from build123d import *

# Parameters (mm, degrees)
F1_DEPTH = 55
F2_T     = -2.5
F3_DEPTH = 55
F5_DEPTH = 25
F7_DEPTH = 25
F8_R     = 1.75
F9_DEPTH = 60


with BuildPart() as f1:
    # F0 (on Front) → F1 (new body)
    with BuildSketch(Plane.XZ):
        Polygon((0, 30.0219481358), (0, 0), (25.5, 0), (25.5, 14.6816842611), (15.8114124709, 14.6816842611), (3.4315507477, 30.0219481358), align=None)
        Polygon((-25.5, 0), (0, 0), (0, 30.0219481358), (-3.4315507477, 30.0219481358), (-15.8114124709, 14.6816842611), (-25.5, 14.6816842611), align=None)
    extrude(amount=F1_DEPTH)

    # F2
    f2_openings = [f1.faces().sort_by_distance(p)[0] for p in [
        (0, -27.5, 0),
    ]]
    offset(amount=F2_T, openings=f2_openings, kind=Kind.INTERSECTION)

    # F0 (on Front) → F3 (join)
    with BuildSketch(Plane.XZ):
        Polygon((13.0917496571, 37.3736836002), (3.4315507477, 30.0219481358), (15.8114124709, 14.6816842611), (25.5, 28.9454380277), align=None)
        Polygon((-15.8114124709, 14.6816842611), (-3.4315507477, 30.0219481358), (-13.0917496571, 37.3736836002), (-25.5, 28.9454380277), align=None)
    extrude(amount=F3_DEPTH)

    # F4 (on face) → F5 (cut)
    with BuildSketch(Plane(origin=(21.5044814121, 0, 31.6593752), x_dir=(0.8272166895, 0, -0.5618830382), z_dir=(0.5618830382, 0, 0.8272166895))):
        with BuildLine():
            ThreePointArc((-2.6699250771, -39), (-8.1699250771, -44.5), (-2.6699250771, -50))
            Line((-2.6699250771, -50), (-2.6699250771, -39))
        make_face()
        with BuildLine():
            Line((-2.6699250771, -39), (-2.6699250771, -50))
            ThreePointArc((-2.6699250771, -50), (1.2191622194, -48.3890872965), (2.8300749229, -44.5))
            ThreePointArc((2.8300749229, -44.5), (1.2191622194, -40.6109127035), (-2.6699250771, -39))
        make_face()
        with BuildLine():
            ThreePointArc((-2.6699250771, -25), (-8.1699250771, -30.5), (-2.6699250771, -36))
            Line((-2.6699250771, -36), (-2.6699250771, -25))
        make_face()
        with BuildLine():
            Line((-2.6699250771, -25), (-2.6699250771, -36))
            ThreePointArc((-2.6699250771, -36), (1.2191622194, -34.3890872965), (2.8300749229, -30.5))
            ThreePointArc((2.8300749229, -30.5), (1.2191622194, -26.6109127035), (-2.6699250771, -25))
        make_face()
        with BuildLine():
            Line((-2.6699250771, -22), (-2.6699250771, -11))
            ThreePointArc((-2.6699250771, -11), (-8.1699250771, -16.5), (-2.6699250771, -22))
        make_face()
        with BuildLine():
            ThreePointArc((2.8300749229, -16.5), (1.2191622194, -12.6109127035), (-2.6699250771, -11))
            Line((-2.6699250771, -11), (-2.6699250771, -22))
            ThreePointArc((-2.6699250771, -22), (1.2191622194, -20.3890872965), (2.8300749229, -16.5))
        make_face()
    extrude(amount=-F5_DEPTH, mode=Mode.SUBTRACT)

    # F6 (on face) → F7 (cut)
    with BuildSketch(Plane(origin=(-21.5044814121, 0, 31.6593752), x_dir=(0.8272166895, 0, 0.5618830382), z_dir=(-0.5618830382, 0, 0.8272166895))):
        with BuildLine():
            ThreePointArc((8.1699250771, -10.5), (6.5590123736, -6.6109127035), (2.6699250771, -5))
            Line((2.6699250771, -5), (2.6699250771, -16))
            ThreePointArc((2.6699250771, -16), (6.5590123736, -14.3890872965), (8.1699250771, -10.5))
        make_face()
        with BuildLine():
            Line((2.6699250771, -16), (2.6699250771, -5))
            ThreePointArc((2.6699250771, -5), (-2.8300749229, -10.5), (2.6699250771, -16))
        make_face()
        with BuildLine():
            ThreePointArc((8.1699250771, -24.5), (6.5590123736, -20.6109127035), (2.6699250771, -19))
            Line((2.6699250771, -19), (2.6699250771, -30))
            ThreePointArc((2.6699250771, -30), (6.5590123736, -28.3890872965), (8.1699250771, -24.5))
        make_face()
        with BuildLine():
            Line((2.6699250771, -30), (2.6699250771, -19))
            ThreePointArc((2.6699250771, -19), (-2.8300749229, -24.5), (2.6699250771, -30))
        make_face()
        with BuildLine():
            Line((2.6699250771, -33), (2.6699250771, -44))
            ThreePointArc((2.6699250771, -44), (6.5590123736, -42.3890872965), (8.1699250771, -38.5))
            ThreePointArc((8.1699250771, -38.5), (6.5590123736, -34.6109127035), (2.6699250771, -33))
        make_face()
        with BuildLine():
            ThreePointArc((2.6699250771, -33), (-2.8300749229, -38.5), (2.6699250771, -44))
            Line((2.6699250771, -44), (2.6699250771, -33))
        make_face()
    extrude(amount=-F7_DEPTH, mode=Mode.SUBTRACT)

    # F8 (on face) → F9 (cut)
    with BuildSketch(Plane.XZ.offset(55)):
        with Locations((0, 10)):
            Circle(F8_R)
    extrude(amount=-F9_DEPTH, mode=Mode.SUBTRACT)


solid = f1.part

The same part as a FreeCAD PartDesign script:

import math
import FreeCAD as App
import Part
import Sketcher

V = App.Vector
Q = App.Units.Quantity


def faces_at(feature, points):
    """Names of the faces that lie closest to the given points."""
    faces = feature.Shape.Faces
    near = lambda p: min(range(len(faces)), key=lambda i: faces[i].distToShape(Part.Vertex(*p))[0])
    return sorted({f"Face{near(p) + 1}" for p in points})

doc = App.newDocument("Part")
params = doc.addObject("Spreadsheet::Sheet", "Params")
for row, (alias, value) in enumerate([
    ("sketch1_width", "51 mm"),
    ("pad1_length", "55 mm"),
    ("thickness_wall", "2.5 mm"),
    ("sketch2_length", "15 mm"),
    ("pad2_length", "55 mm"),
    ("sketch3_radius", "5.5 mm"),
    ("pocket1_length", "25 mm"),
    ("sketch4_radius", "5.5 mm"),
    ("pocket2_length", "25 mm"),
    ("sketch5_diameter", "3.5 mm"),
    ("pocket3_length", "60 mm"),
], start=1):
    params.set(f"A{row}", alias)
    params.set(f"B{row}", "=" + value)
    params.setAlias(f"B{row}", alias)

body = doc.addObject("PartDesign::Body", "Body")

# Sketch on XZ plane
sketch1 = body.newObject("Sketcher::SketchObject", "Sketch")
sketch1.AttachmentSupport = (doc.getObject("XZ_Plane"), [""])
sketch1.MapMode = "FlatFace"
sketch1.addGeometry([
    Part.LineSegment(V(25.5, 0, 0), V(25.5, 14.681684, 0)),  # 0
    Part.LineSegment(V(25.5, 14.681684, 0), V(15.811412, 14.681684, 0)),  # 1
    Part.LineSegment(V(15.811412, 14.681684, 0), V(3.431551, 30.021948, 0)),  # 2
    Part.LineSegment(V(3.431551, 30.021948, 0), V(-3.431551, 30.021948, 0)),  # 3
    Part.LineSegment(V(-3.431551, 30.021948, 0), V(-15.811412, 14.681684, 0)),  # 4
    Part.LineSegment(V(-15.811412, 14.681684, 0), V(-25.5, 14.681684, 0)),  # 5
    Part.LineSegment(V(-25.5, 14.681684, 0), V(-25.5, 0, 0)),  # 6
    Part.LineSegment(V(-25.5, 0, 0), V(25.5, 0, 0)),  # 7
], False)
sketch1.addConstraint([
    Sketcher.Constraint("Coincident", 0, 2, 1, 1),
    Sketcher.Constraint("Coincident", 1, 2, 2, 1),
    Sketcher.Constraint("Coincident", 2, 2, 3, 1),
    Sketcher.Constraint("Coincident", 3, 2, 4, 1),
    Sketcher.Constraint("Coincident", 4, 2, 5, 1),
    Sketcher.Constraint("Coincident", 5, 2, 6, 1),
    Sketcher.Constraint("Coincident", 6, 2, 7, 1),
    Sketcher.Constraint("Coincident", 7, 2, 0, 1),
    Sketcher.Constraint("Vertical", 0),
    Sketcher.Constraint("Horizontal", 1),
    Sketcher.Constraint("Horizontal", 3),
    Sketcher.Constraint("Horizontal", 5),
    Sketcher.Constraint("Vertical", 6),
    Sketcher.Constraint("Horizontal", 7),
    Sketcher.Constraint("Symmetric", 6, 2, 7, 2, -1, 1),
    Sketcher.Constraint("Symmetric", 1, 2, 4, 2, -2),
    Sketcher.Constraint("Equal", 2, 4),
    Sketcher.Constraint("DistanceX", 7, 1, 7, 2, Q("51 mm")),
    Sketcher.Constraint("DistanceX", 3, 2, 3, 1, Q("6.863101 mm")),
    Sketcher.Constraint("Distance", 2, Q("19.712551 mm")),
    Sketcher.Constraint("DistanceX", 1, 2, 1, 1, Q("9.688588 mm")),
    Sketcher.Constraint("DistanceY", 0, 1, 0, 2, Q("14.681684 mm")),
])
sketch1.setExpression("Constraints[17]", "Params.sketch1_width")
pad1 = body.newObject("PartDesign::Pad", "Pad")
pad1.Profile = sketch1
pad1.setExpression("Length", "Params.pad1_length")
doc.recompute()

thickness = body.newObject("PartDesign::Thickness", "Thickness")
thickness.Base = (pad1, faces_at(pad1, [(0, -27.5, 0)]))
thickness.setExpression("Value", "Params.thickness_wall")
thickness.Reversed = True
thickness.Join = "Intersection"

# Sketch on XZ plane
sketch2 = body.newObject("Sketcher::SketchObject", "Sketch001")
sketch2.AttachmentSupport = (doc.getObject("XZ_Plane"), [""])
sketch2.MapMode = "FlatFace"
sketch2.addGeometry([
    Part.LineSegment(V(13.09175, 37.373684, 0), V(3.431551, 30.021948, 0)),  # 0
    Part.LineSegment(V(3.431551, 30.021948, 0), V(15.811412, 14.681684, 0)),  # 1
    Part.LineSegment(V(15.811412, 14.681684, 0), V(25.5, 28.945438, 0)),  # 2
    Part.LineSegment(V(25.5, 28.945438, 0), V(13.09175, 37.373684, 0)),  # 3
    Part.LineSegment(V(-15.811412, 14.681684, 0), V(-3.431551, 30.021948, 0)),  # 4
    Part.LineSegment(V(-3.431551, 30.021948, 0), V(-13.09175, 37.373684, 0)),  # 5
    Part.LineSegment(V(-13.09175, 37.373684, 0), V(-25.5, 28.945438, 0)),  # 6
    Part.LineSegment(V(-25.5, 28.945438, 0), V(-15.811412, 14.681684, 0)),  # 7
], False)
sketch2.addConstraint([
    Sketcher.Constraint("Coincident", 0, 2, 1, 1),
    Sketcher.Constraint("Coincident", 1, 2, 2, 1),
    Sketcher.Constraint("Coincident", 2, 2, 3, 1),
    Sketcher.Constraint("Coincident", 3, 2, 0, 1),
    Sketcher.Constraint("Coincident", 4, 2, 5, 1),
    Sketcher.Constraint("Coincident", 5, 2, 6, 1),
    Sketcher.Constraint("Coincident", 6, 2, 7, 1),
    Sketcher.Constraint("Coincident", 7, 2, 4, 1),
    Sketcher.Constraint("Symmetric", 0, 2, 4, 2, -2),
    Sketcher.Constraint("Symmetric", 3, 2, 5, 2, -2),
    Sketcher.Constraint("Symmetric", 2, 2, 6, 2, -2),
    Sketcher.Constraint("Symmetric", 1, 2, 7, 2, -2),
    Sketcher.Constraint("Perpendicular", 2, 3),
    Sketcher.Constraint("Distance", 3, Q("15 mm")),
    Sketcher.Constraint("DistanceX", -1, 1, 2, 2, Q("25.5 mm")),
    Sketcher.Constraint("DistanceY", 1, 2, 3, 2, Q("22.691999 mm")),
    Sketcher.Constraint("Distance", 0, Q("12.1395 mm")),
    Sketcher.Constraint("DistanceX", 0, 2, 3, 2, Q("9.660199 mm")),
    Sketcher.Constraint("DistanceX", 4, 2, 0, 2, Q("6.863101 mm")),
    Sketcher.Constraint("DistanceY", -1, 1, 0, 2, Q("30.021948 mm")),
])
sketch2.setExpression("Constraints[13]", "Params.sketch2_length")
pad2 = body.newObject("PartDesign::Pad", "Pad001")
pad2.Profile = sketch2
pad2.setExpression("Length", "Params.pad2_length")

# Sketch on an angled plane
sketch3 = body.newObject("Sketcher::SketchObject", "Sketch002")
sketch3.Placement = App.Placement(V(21.504481, 0, 31.659375), App.Rotation(V(0.827216689, 0, -0.561883038), V(0, 0.999999999, 0), V(0.561883038, 0, 0.827216689), "ZXY"))
sketch3.addGeometry([
    Part.ArcOfCircle(Part.Circle(V(-2.669925, -44.5, 0), V(0, 0, 1), 5.5), math.radians(90), math.radians(270)),  # 0
    Part.ArcOfCircle(Part.Circle(V(-2.669925, -44.5, 0), V(0, 0, 1), 5.5), math.radians(-90), math.radians(0)),  # 1
    Part.ArcOfCircle(Part.Circle(V(-2.669925, -44.5, 0), V(0, 0, 1), 5.5), math.radians(0), math.radians(90)),  # 2
    Part.ArcOfCircle(Part.Circle(V(-2.669925, -30.5, 0), V(0, 0, 1), 5.5), math.radians(90), math.radians(270)),  # 3
    Part.ArcOfCircle(Part.Circle(V(-2.669925, -30.5, 0), V(0, 0, 1), 5.5), math.radians(-90), math.radians(0)),  # 4
    Part.ArcOfCircle(Part.Circle(V(-2.669925, -30.5, 0), V(0, 0, 1), 5.5), math.radians(0), math.radians(90)),  # 5
    Part.ArcOfCircle(Part.Circle(V(-2.669925, -16.5, 0), V(0, 0, 1), 5.5), math.radians(90), math.radians(270)),  # 6
    Part.ArcOfCircle(Part.Circle(V(-2.669925, -16.5, 0), V(0, 0, 1), 5.5), math.radians(-90), math.radians(0)),  # 7
    Part.ArcOfCircle(Part.Circle(V(-2.669925, -16.5, 0), V(0, 0, 1), 5.5), math.radians(0), math.radians(90)),  # 8
], False)
sketch3.addConstraint([
    Sketcher.Constraint("Tangent", 0, 2, 1, 1),
    Sketcher.Constraint("Tangent", 1, 2, 2, 1),
    Sketcher.Constraint("Tangent", 2, 2, 0, 1),
    Sketcher.Constraint("Tangent", 3, 2, 4, 1),
    Sketcher.Constraint("Tangent", 4, 2, 5, 1),
    Sketcher.Constraint("Tangent", 5, 2, 3, 1),
    Sketcher.Constraint("Tangent", 6, 2, 7, 1),
    Sketcher.Constraint("Tangent", 7, 2, 8, 1),
    Sketcher.Constraint("Tangent", 8, 2, 6, 1),
    Sketcher.Constraint("Equal", 2, 3),
    Sketcher.Constraint("Equal", 5, 6),
    Sketcher.Constraint("Horizontal", 2, 3, 1, 2),
    Sketcher.Constraint("Horizontal", 5, 3, 4, 2),
    Sketcher.Constraint("Horizontal", 8, 3, 7, 2),
    Sketcher.Constraint("Vertical", 2, 3, 3, 3),
    Sketcher.Constraint("Vertical", 5, 3, 6, 3),
    Sketcher.Constraint("Vertical", 8, 3, 0, 2),
    Sketcher.Constraint("Vertical", 0, 2, 2, 2),
    Sketcher.Constraint("Vertical", 2, 2, 3, 2),
    Sketcher.Constraint("Vertical", 3, 2, 5, 2),
    Sketcher.Constraint("Vertical", 5, 2, 6, 2),
    Sketcher.Constraint("Vertical", 6, 2, 8, 2),
    Sketcher.Constraint("Radius", 0, Q("5.5 mm")),
    Sketcher.Constraint("DistanceY", 0, 2, -1, 1, Q("50 mm")),
    Sketcher.Constraint("DistanceY", 3, 2, -1, 1, Q("36 mm")),
    Sketcher.Constraint("DistanceY", 6, 2, -1, 1, Q("22 mm")),
    Sketcher.Constraint("DistanceX", 0, 3, -1, 1, Q("2.669925 mm")),
])
sketch3.setExpression("Constraints[22]", "Params.sketch3_radius")
pocket1 = body.newObject("PartDesign::Pocket", "Pocket")
pocket1.Profile = sketch3
pocket1.setExpression("Length", "Params.pocket1_length")

# Sketch on an angled plane
sketch4 = body.newObject("Sketcher::SketchObject", "Sketch003")
sketch4.Placement = App.Placement(V(-21.504481, 0, 31.659375), App.Rotation(V(0.827216689, 0, 0.561883038), V(0, 0.999999999, 0), V(-0.561883038, 0, 0.827216689), "ZXY"))
sketch4.addGeometry([
    Part.ArcOfCircle(Part.Circle(V(2.669925, -10.5, 0), V(0, 0, 1), 5.5), math.radians(0), math.radians(90)),  # 0
    Part.ArcOfCircle(Part.Circle(V(2.669925, -10.5, 0), V(0, 0, 1), 5.5), math.radians(90), math.radians(270)),  # 1
    Part.ArcOfCircle(Part.Circle(V(2.669925, -10.5, 0), V(0, 0, 1), 5.5), math.radians(-90), math.radians(0)),  # 2
    Part.ArcOfCircle(Part.Circle(V(2.669925, -24.5, 0), V(0, 0, 1), 5.5), math.radians(0), math.radians(90)),  # 3
    Part.ArcOfCircle(Part.Circle(V(2.669925, -24.5, 0), V(0, 0, 1), 5.5), math.radians(90), math.radians(270)),  # 4
    Part.ArcOfCircle(Part.Circle(V(2.669925, -24.5, 0), V(0, 0, 1), 5.5), math.radians(-90), math.radians(0)),  # 5
    Part.ArcOfCircle(Part.Circle(V(2.669925, -38.5, 0), V(0, 0, 1), 5.5), math.radians(-90), math.radians(0)),  # 6
    Part.ArcOfCircle(Part.Circle(V(2.669925, -38.5, 0), V(0, 0, 1), 5.5), math.radians(0), math.radians(90)),  # 7
    Part.ArcOfCircle(Part.Circle(V(2.669925, -38.5, 0), V(0, 0, 1), 5.5), math.radians(90), math.radians(270)),  # 8
], False)
sketch4.addConstraint([
    Sketcher.Constraint("Tangent", 0, 2, 1, 1),
    Sketcher.Constraint("Tangent", 1, 2, 2, 1),
    Sketcher.Constraint("Tangent", 2, 2, 0, 1),
    Sketcher.Constraint("Tangent", 3, 2, 4, 1),
    Sketcher.Constraint("Tangent", 4, 2, 5, 1),
    Sketcher.Constraint("Tangent", 5, 2, 3, 1),
    Sketcher.Constraint("Tangent", 6, 2, 7, 1),
    Sketcher.Constraint("Tangent", 7, 2, 8, 1),
    Sketcher.Constraint("Tangent", 8, 2, 6, 1),
    Sketcher.Constraint("Equal", 2, 3),
    Sketcher.Constraint("Equal", 5, 6),
    Sketcher.Constraint("Horizontal", 1, 3, 2, 2),
    Sketcher.Constraint("Horizontal", 4, 3, 5, 2),
    Sketcher.Constraint("Horizontal", 8, 3, 6, 2),
    Sketcher.Constraint("Vertical", 2, 3, 3, 3),
    Sketcher.Constraint("Vertical", 5, 3, 6, 3),
    Sketcher.Constraint("Vertical", 8, 3, 0, 2),
    Sketcher.Constraint("Vertical", 0, 2, 1, 2),
    Sketcher.Constraint("Vertical", 1, 2, 3, 2),
    Sketcher.Constraint("Vertical", 3, 2, 4, 2),
    Sketcher.Constraint("Vertical", 4, 2, 7, 2),
    Sketcher.Constraint("Vertical", 7, 2, 8, 2),
    Sketcher.Constraint("Radius", 0, Q("5.5 mm")),
    Sketcher.Constraint("DistanceY", 0, 2, -1, 1, Q("5 mm")),
    Sketcher.Constraint("DistanceY", 3, 2, -1, 1, Q("19 mm")),
    Sketcher.Constraint("DistanceY", 7, 2, -1, 1, Q("33 mm")),
    Sketcher.Constraint("DistanceX", -1, 1, 0, 3, Q("2.669925 mm")),
])
sketch4.setExpression("Constraints[22]", "Params.sketch4_radius")
pocket2 = body.newObject("PartDesign::Pocket", "Pocket001")
pocket2.Profile = sketch4
pocket2.setExpression("Length", "Params.pocket2_length")

# Sketch on XZ plane
sketch5 = body.newObject("Sketcher::SketchObject", "Sketch004")
sketch5.AttachmentSupport = (doc.getObject("XZ_Plane"), [""])
sketch5.MapMode = "FlatFace"
sketch5.AttachmentOffset = App.Placement(V(0, 0, 55), App.Rotation())
sketch5.addGeometry(Part.Circle(V(0, 10, 0), V(0, 0, 1), 1.75), False)
sketch5.addConstraint([
    Sketcher.Constraint("PointOnObject", 0, 3, -2),
    Sketcher.Constraint("Diameter", 0, Q("3.5 mm")),
    Sketcher.Constraint("DistanceY", -1, 1, 0, 3, Q("10 mm")),
])
sketch5.setExpression("Constraints[1]", "Params.sketch5_diameter")
pocket3 = body.newObject("PartDesign::Pocket", "Pocket002")
pocket3.Profile = sketch5
pocket3.setExpression("Length", "Params.pocket3_length")

doc.recompute()
